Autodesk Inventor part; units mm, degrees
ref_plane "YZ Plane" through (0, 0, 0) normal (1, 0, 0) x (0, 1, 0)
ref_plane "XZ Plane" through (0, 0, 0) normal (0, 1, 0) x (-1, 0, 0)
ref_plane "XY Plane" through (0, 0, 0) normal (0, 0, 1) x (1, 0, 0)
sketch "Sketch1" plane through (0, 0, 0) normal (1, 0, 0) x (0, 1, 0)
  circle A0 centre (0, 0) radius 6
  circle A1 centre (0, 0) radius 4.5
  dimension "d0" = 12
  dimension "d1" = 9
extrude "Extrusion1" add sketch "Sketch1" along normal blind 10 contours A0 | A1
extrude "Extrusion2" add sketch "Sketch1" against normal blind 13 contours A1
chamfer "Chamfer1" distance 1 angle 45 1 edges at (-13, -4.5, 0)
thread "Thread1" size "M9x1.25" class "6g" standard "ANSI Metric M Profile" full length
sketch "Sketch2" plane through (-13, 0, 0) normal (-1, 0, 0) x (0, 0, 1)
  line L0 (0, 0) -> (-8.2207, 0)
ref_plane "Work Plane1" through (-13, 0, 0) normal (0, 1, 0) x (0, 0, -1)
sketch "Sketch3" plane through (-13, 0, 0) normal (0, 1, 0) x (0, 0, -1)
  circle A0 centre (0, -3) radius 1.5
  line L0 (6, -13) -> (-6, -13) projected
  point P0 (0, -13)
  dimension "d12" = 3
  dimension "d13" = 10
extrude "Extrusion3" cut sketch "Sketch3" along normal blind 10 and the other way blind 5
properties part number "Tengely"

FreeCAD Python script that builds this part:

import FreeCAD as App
import Part
import Sketcher

V = App.Vector
Q = App.Units.Quantity


def edges_at(feature, points):
    """Names of the edges that pass closest to the given points."""
    edges = feature.Shape.Edges
    near = lambda p: min(range(len(edges)), key=lambda i: edges[i].distToShape(Part.Vertex(*p))[0])
    return sorted({f"Edge{near(p) + 1}" for p in points})

doc = App.newDocument("Part")
body = doc.addObject("PartDesign::Body", "Body")

# Sketch on YZ plane
sketch1 = doc.addObject("Sketcher::SketchObject", "Sketch")
body.addObject(sketch1)
sketch1.AttachmentSupport = (doc.YZ_Plane, [""])
sketch1.MapMode = "FlatFace"
sketch1.addGeometry(Part.Circle(V(0, 0, 0), V(0, 0, 1), 6), False)
sketch1.addConstraint([
    Sketcher.Constraint("Coincident", 0, 3, -1, 1),
    Sketcher.Constraint("Diameter", 0, Q("12 mm")),
])
pad1 = doc.addObject("PartDesign::Pad", "Pad")
body.addObject(pad1)
pad1.Profile = sketch1
pad1.Length = 10

# Sketch on YZ plane
sketch2 = doc.addObject("Sketcher::SketchObject", "Sketch001")
body.addObject(sketch2)
sketch2.AttachmentSupport = (doc.YZ_Plane, [""])
sketch2.MapMode = "FlatFace"
sketch2.addGeometry(Part.Circle(V(0, 0, 0), V(0, 0, 1), 4.5), False)
sketch2.addConstraint([
    Sketcher.Constraint("Coincident", 0, 3, -1, 1),
    Sketcher.Constraint("Diameter", 0, Q("9 mm")),
])
pad2 = doc.addObject("PartDesign::Pad", "Pad001")
body.addObject(pad2)
pad2.Profile = sketch2
pad2.Length = 13
pad2.Reversed = True
doc.recompute()

chamfer = doc.addObject("PartDesign::Chamfer", "Chamfer")
body.addObject(chamfer)
chamfer.Base = (pad2, edges_at(pad2, [(-13, -4.5, 0)]))
chamfer.Size = 1

# Sketch on XZ plane
sketch3 = doc.addObject("Sketcher::SketchObject", "Sketch002")
body.addObject(sketch3)
sketch3.AttachmentSupport = (doc.XZ_Plane, [""])
sketch3.MapMode = "FlatFace"
sketch3.addGeometry(Part.Circle(V(-10, 0, 0), V(0, 0, 1), 1.5), False)
sketch3.addConstraint([
    Sketcher.Constraint("PointOnObject", 0, 3, -1),
    Sketcher.Constraint("Diameter", 0, Q("3 mm")),
    Sketcher.Constraint("DistanceX", 0, 3, -1, 1, Q("10 mm")),
])
pocket1 = doc.addObject("PartDesign::Pocket", "Pocket")
body.addObject(pocket1)
pocket1.Profile = sketch3
pocket1.Type = "ThroughAll"
pocket1.Midplane = True

doc.recompute()
